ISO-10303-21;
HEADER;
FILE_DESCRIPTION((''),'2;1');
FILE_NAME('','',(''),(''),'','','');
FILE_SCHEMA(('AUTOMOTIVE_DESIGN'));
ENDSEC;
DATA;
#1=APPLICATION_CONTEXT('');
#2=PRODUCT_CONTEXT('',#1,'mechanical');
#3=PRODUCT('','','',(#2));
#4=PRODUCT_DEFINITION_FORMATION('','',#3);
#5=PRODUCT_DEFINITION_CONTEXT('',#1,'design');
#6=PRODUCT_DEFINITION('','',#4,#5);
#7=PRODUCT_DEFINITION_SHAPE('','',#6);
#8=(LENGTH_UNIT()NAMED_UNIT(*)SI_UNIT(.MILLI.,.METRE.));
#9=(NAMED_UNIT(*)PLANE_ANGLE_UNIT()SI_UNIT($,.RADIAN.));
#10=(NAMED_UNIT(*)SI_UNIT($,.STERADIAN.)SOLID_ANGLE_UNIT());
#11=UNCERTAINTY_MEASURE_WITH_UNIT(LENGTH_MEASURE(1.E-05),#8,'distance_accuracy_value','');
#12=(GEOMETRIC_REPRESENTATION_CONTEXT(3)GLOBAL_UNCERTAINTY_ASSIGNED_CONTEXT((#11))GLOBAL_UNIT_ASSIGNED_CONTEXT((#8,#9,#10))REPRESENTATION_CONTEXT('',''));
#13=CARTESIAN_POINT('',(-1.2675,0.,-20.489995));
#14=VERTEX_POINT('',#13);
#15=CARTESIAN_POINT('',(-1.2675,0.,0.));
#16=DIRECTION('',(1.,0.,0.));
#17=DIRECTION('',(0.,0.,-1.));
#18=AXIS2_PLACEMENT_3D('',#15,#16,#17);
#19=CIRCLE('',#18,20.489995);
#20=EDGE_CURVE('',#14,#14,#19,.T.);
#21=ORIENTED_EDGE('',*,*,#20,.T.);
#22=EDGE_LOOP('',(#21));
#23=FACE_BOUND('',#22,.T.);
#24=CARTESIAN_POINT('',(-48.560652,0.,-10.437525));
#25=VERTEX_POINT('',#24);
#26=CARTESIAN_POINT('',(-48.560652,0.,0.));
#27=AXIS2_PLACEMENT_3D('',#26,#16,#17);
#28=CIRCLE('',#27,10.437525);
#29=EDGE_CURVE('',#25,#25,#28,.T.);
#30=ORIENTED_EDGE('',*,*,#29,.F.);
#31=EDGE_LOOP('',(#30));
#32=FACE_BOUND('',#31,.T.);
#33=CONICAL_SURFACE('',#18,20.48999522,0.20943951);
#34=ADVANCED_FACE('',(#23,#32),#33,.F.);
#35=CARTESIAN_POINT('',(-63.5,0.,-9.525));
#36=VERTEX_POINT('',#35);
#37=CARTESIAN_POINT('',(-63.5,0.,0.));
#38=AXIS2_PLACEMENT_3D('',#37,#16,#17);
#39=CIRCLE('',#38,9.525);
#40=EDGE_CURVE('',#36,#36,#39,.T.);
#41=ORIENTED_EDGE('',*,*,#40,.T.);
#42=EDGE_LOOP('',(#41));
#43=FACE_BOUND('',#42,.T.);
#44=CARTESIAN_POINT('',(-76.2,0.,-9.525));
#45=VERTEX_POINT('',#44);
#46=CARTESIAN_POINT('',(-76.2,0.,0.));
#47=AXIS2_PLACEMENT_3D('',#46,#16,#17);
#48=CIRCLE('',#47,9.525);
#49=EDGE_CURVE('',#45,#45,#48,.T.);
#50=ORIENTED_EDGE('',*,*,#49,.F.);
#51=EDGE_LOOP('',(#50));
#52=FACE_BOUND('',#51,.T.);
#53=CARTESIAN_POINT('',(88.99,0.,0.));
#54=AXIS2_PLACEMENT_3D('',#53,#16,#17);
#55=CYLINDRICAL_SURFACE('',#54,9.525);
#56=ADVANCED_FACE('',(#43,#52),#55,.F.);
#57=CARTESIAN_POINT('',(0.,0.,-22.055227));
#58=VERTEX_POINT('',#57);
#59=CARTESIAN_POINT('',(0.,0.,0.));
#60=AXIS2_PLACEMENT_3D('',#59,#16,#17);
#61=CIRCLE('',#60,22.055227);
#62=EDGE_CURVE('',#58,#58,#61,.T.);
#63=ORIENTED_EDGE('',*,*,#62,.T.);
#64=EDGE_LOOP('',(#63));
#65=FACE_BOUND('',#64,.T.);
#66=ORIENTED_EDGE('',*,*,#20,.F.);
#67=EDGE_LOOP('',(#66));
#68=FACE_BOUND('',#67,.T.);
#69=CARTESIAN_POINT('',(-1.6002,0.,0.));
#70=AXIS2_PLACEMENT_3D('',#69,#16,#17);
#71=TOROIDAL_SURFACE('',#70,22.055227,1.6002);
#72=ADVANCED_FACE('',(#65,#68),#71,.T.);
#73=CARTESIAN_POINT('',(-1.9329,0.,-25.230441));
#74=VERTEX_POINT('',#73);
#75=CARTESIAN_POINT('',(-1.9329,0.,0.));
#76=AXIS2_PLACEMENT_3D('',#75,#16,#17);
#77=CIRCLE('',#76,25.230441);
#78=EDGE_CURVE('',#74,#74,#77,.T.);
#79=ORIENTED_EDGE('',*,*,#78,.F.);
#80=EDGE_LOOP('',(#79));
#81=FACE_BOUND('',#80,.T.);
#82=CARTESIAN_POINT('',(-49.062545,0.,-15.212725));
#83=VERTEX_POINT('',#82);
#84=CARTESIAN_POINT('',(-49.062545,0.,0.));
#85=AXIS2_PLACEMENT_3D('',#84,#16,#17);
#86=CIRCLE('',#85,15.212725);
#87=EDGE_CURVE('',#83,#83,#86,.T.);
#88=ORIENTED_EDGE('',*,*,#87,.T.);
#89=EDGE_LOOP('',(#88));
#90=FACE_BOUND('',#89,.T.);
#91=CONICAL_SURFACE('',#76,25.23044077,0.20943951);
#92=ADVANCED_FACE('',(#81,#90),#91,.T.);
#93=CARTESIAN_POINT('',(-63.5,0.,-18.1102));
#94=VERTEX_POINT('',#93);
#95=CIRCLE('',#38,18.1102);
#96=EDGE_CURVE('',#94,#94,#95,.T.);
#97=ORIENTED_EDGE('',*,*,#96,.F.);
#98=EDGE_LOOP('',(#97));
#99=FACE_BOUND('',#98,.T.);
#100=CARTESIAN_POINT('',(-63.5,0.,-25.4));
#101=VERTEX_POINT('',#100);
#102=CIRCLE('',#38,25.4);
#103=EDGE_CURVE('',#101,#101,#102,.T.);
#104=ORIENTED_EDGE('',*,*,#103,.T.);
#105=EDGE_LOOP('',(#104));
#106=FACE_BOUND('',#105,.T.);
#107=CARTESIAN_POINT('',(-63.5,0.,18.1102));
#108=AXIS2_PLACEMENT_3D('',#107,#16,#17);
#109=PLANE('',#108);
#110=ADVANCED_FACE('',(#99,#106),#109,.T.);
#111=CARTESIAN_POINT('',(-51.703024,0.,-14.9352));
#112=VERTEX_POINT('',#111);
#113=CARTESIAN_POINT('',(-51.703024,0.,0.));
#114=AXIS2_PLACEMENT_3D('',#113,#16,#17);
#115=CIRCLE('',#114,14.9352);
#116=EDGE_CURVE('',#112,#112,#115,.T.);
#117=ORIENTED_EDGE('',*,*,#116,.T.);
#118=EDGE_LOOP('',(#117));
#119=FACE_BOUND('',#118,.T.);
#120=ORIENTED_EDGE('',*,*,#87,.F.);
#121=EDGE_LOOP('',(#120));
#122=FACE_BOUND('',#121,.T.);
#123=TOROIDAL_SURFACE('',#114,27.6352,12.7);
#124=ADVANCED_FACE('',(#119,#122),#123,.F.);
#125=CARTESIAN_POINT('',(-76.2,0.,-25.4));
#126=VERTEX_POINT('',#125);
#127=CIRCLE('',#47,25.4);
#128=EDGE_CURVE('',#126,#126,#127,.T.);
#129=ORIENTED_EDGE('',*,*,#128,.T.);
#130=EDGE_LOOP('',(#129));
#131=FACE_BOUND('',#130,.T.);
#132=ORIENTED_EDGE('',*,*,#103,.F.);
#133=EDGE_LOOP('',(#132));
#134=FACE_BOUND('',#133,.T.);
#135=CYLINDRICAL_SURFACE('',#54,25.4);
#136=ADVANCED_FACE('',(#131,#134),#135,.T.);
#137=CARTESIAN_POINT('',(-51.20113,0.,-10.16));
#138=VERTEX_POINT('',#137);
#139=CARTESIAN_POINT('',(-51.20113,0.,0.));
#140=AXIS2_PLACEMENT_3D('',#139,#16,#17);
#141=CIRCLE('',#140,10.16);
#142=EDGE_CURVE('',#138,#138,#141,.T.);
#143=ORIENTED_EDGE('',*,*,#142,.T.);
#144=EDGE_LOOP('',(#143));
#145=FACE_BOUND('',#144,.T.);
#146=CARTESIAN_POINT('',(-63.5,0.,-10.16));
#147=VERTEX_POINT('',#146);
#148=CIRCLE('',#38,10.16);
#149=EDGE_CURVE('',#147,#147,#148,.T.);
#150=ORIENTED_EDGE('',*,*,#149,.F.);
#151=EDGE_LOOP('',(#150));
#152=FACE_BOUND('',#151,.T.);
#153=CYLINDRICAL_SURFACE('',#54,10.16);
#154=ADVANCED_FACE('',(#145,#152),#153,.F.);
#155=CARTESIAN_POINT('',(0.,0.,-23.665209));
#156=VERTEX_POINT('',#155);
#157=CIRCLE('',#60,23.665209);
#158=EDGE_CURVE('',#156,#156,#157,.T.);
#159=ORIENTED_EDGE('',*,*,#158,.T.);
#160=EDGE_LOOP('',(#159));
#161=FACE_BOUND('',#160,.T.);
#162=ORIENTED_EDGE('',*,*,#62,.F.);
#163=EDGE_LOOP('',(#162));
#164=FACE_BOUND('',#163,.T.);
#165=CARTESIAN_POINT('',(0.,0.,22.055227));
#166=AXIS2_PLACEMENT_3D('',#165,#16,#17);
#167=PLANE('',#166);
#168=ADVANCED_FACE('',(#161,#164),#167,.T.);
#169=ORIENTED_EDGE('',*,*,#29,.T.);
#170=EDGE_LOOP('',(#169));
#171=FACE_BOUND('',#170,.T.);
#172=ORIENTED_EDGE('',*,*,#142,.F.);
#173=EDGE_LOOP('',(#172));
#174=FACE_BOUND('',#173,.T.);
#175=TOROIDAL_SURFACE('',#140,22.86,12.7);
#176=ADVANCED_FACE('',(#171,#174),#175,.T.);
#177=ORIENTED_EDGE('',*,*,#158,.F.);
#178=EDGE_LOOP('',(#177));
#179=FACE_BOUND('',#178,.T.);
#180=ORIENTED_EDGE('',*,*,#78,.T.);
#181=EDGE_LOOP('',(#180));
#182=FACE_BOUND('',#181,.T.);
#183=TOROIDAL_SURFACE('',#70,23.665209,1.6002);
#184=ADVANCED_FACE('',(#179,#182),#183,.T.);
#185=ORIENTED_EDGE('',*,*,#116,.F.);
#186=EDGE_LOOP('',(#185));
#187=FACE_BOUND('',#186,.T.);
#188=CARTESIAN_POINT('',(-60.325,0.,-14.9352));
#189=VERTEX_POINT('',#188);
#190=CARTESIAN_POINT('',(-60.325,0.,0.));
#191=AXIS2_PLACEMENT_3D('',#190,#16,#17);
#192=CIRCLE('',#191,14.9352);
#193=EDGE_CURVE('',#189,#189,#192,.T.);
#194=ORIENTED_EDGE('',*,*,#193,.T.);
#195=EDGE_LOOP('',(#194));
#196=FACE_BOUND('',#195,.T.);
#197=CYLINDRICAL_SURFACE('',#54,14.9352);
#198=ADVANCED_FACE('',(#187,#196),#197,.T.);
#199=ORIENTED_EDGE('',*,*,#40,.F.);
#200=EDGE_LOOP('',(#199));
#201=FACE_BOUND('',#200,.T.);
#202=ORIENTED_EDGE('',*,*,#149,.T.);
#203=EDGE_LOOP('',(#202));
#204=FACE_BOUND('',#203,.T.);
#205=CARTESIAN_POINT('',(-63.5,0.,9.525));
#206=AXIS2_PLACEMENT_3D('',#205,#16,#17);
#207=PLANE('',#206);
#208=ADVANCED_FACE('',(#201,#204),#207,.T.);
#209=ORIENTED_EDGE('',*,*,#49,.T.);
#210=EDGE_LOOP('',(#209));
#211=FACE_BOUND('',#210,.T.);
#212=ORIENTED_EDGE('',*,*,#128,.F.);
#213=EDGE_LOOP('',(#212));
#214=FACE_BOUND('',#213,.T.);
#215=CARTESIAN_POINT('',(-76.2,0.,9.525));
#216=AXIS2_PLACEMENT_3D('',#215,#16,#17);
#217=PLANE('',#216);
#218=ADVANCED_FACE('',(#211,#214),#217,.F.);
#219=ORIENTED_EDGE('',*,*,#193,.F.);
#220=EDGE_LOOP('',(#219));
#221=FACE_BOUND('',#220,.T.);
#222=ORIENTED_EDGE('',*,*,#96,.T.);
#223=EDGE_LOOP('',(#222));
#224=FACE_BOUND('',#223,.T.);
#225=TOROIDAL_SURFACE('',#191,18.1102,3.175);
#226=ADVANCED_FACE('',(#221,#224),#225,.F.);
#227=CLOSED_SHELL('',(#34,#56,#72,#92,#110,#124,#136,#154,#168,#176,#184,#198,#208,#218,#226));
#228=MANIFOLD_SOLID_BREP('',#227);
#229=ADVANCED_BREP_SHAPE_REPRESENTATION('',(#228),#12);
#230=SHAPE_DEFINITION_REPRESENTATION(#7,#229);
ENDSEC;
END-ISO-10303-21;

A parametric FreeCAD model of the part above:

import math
import FreeCAD as App
import Part
import Sketcher

V = App.Vector
Q = App.Units.Quantity

doc = App.newDocument("Part")
body = doc.addObject("PartDesign::Body", "Body")

sketch1 = body.newObject("Sketcher::SketchObject", "Sketch")
sketch1.AttachmentSupport = (doc.getObject("XZ_Plane"), [""])
sketch1.MapMode = "FlatFace"
sketch1.addGeometry([
    Part.LineSegment(V(-49.1, 15.2, 0), V(-1.9, 25.2, 0)),
    Part.ArcOfCircle(Part.Circle(V(-1.6, 23.7, 0), V(0, 0, 1), 1.6), math.radians(0), math.radians(102)),
    Part.LineSegment(V(0, 23.7, 0), V(0, 22.1, 0)),
    Part.ArcOfCircle(Part.Circle(V(-1.6, 22.1, 0), V(0, 0, 1), 1.6), math.radians(-78), math.radians(0)),
    Part.LineSegment(V(-1.3, 20.5, 0), V(-48.6, 10.4, 0)),
    Part.ArcOfCircle(Part.Circle(V(-51.2, 22.9, 0), V(0, 0, 1), 12.7), math.radians(-90), math.radians(-78)),
    Part.LineSegment(V(-51.2, 10.2, 0), V(-63.5, 10.2, 0)),
    Part.LineSegment(V(-63.5, 10.2, 0), V(-63.5, 9.5, 0)),
    Part.LineSegment(V(-63.5, 9.5, 0), V(-76.2, 9.5, 0)),
    Part.LineSegment(V(-76.2, 9.5, 0), V(-76.2, 25.4, 0)),
    Part.LineSegment(V(-76.2, 25.4, 0), V(-63.5, 25.4, 0)),
    Part.LineSegment(V(-63.5, 25.4, 0), V(-63.5, 18.1, 0)),
    Part.ArcOfCircle(Part.Circle(V(-60.3, 18.1, 0), V(0, 0, 1), 3.2), math.radians(-180), math.radians(-90)),
    Part.LineSegment(V(-60.3, 14.9, 0), V(-51.7, 14.9, 0)),
    Part.ArcOfCircle(Part.Circle(V(-51.7, 27.6, 0), V(0, 0, 1), 12.7), math.radians(-90), math.radians(-78)),
], False)
sketch1.addConstraint([
    Sketcher.Constraint("Tangent", 0, 2, 1, 2),
    Sketcher.Constraint("Tangent", 1, 1, 2, 1),
    Sketcher.Constraint("Tangent", 2, 2, 3, 2),
    Sketcher.Constraint("Tangent", 3, 1, 4, 1),
    Sketcher.Constraint("Tangent", 4, 2, 5, 2),
    Sketcher.Constraint("Tangent", 5, 1, 6, 1),
    Sketcher.Constraint("Coincident", 6, 2, 7, 1),
    Sketcher.Constraint("Coincident", 7, 2, 8, 1),
    Sketcher.Constraint("Coincident", 8, 2, 9, 1),
    Sketcher.Constraint("Coincident", 9, 2, 10, 1),
    Sketcher.Constraint("Coincident", 10, 2, 11, 1),
    Sketcher.Constraint("Tangent", 11, 2, 12, 1),
    Sketcher.Constraint("Tangent", 12, 2, 13, 1),
    Sketcher.Constraint("Tangent", 13, 2, 14, 1),
    Sketcher.Constraint("Tangent", 14, 2, 0, 1),
    Sketcher.Constraint("Vertical", 2),
    Sketcher.Constraint("Horizontal", 6),
    Sketcher.Constraint("Vertical", 7),
    Sketcher.Constraint("Horizontal", 8),
    Sketcher.Constraint("Vertical", 9),
    Sketcher.Constraint("Horizontal", 10),
    Sketcher.Constraint("Vertical", 11),
    Sketcher.Constraint("Horizontal", 13),
    Sketcher.Constraint("Equal", 1, 3),
    Sketcher.Constraint("Equal", 5, 14),
    Sketcher.Constraint("PointOnObject", 1, 1, -2),
    Sketcher.Constraint("Parallel", 0, 4),
    Sketcher.Constraint("Vertical", 7, 2, 10, 2),
    Sketcher.Constraint("Radius", 5, Q("0.5 in")),
    Sketcher.Constraint("DistanceX", 8, 2, 8, 1, Q("0.5 in")),
    Sketcher.Constraint("DistanceX", 8, 2, -1, 1, Q("3 in")),
    Sketcher.Constraint("DistanceY", -1, 1, 9, 2, Q("1 in")),
    Sketcher.Constraint("Angle", 0, Q("12 deg")),
    Sketcher.Constraint("Radius", 1, Q("0.063 in")),
    Sketcher.Constraint("Radius", 12, Q("0.125 in")),
    Sketcher.Constraint("DistanceY", -1, 1, 5, 3, Q("0.9 in")),
    Sketcher.Constraint("DistanceY", 7, 2, 7, 1, Q("0.025 in")),
    Sketcher.Constraint("DistanceY", 11, 2, 11, 1, Q("0.287 in")),
    Sketcher.Constraint("DistanceX", 6, 2, 6, 1, 12.29887),
    Sketcher.Constraint("DistanceY", 2, 2, 2, 1, 1.609982),
])
revolution = body.newObject("PartDesign::Revolution", "Revolution")
revolution.Profile = sketch1
revolution.ReferenceAxis = (sketch1, ["H_Axis"])
revolution.Angle = 360

doc.recompute()
